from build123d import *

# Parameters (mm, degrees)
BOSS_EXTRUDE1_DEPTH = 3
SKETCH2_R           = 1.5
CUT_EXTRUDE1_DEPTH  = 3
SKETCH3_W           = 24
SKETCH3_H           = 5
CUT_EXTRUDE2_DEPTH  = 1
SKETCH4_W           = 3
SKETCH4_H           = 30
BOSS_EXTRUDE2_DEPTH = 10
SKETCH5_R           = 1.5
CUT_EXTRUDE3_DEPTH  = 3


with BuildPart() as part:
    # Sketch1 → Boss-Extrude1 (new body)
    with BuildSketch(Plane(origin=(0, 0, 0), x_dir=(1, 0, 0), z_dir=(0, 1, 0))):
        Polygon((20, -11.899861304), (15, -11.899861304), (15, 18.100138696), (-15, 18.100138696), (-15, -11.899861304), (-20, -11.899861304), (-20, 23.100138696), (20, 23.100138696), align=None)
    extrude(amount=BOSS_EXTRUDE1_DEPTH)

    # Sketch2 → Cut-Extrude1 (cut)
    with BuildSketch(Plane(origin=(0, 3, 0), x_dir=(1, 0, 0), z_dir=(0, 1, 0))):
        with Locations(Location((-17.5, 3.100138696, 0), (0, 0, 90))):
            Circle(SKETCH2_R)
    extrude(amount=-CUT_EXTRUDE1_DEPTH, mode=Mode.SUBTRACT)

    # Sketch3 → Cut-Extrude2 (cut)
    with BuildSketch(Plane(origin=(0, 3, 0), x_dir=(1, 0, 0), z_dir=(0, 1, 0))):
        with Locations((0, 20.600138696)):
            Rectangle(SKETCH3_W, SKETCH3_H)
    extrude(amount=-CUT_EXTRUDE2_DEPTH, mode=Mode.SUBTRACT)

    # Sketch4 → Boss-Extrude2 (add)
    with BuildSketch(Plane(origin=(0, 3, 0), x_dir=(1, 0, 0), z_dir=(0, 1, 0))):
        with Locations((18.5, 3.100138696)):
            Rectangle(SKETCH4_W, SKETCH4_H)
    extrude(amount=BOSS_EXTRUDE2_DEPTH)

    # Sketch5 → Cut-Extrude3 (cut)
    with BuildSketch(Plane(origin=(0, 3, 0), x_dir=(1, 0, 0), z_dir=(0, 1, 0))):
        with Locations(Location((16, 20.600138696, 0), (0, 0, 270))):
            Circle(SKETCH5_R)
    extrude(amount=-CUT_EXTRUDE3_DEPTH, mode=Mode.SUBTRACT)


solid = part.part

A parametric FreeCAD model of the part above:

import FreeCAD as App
import Part
import Sketcher

V = App.Vector

doc = App.newDocument("Part")
body = doc.addObject("PartDesign::Body", "Body")

sketch1 = body.newObject("Sketcher::SketchObject", "Sketch")
sketch1.AttachmentSupport = (doc.getObject("XZ_Plane"), [""])
sketch1.MapMode = "FlatFace"
sketch1.addGeometry([
    Part.LineSegment(V(15, 12, 0), V(20, 12, 0)),
    Part.LineSegment(V(20, 12, 0), V(20, -23, 0)),
    Part.LineSegment(V(20, -23, 0), V(-20, -23, 0)),
    Part.LineSegment(V(-20, -23, 0), V(-20, 12, 0)),
    Part.LineSegment(V(-20, 12, 0), V(-15, 12, 0)),
    Part.LineSegment(V(-15, 12, 0), V(-15, -18, 0)),
    Part.LineSegment(V(-15, -18, 0), V(15, -18, 0)),
    Part.LineSegment(V(15, -18, 0), V(15, 12, 0)),
], False)
sketch1.addConstraint([
    Sketcher.Constraint("Coincident", 0, 2, 1, 1),
    Sketcher.Constraint("Coincident", 1, 2, 2, 1),
    Sketcher.Constraint("Coincident", 2, 2, 3, 1),
    Sketcher.Constraint("Coincident", 3, 2, 4, 1),
    Sketcher.Constraint("Coincident", 4, 2, 5, 1),
    Sketcher.Constraint("Coincident", 5, 2, 6, 1),
    Sketcher.Constraint("Coincident", 6, 2, 7, 1),
    Sketcher.Constraint("Coincident", 7, 2, 0, 1),
    Sketcher.Constraint("Horizontal", 0),
    Sketcher.Constraint("Vertical", 1),
    Sketcher.Constraint("Horizontal", 2),
    Sketcher.Constraint("Vertical", 3),
    Sketcher.Constraint("Horizontal", 4),
    Sketcher.Constraint("Vertical", 5),
    Sketcher.Constraint("Horizontal", 6),
    Sketcher.Constraint("Vertical", 7),
    Sketcher.Constraint("Symmetric", 0, 2, 3, 2, -2),
    Sketcher.Constraint("Equal", 0, 4),
    Sketcher.Constraint("Equal", 6, 5),
    Sketcher.Constraint("DistanceX", 0, 1, 0, 2, 5.0),
    Sketcher.Constraint("DistanceX", 2, 2, 2, 1, 40.0),
    Sketcher.Constraint("DistanceY", 1, 2, 1, 1, 35.0),
    Sketcher.Constraint("DistanceY", -1, 1, 0, 2, 11.899861),
])
pad1 = body.newObject("PartDesign::Pad", "Pad")
pad1.Profile = sketch1
pad1.Length = 3
pad1.Reversed = True

sketch2 = body.newObject("Sketcher::SketchObject", "Sketch001")
sketch2.AttachmentSupport = (doc.getObject("XZ_Plane"), [""])
sketch2.MapMode = "FlatFace"
sketch2.AttachmentOffset = App.Placement(V(0, 0, -3), App.Rotation())
sketch2.addGeometry(Part.Circle(V(-17.5, -3.1, 0), V(0, 0, 1), 1.5), False)
sketch2.addConstraint([
    Sketcher.Constraint("Diameter", 0, 3.0),
    Sketcher.Constraint("DistanceX", 0, 3, -1, 1, 17.5),
    Sketcher.Constraint("DistanceY", 0, 3, -1, 1, 3.100139),
])
pocket1 = body.newObject("PartDesign::Pocket", "Pocket")
pocket1.Profile = sketch2
pocket1.Length = 3
pocket1.Reversed = True

sketch3 = body.newObject("Sketcher::SketchObject", "Sketch002")
sketch3.AttachmentSupport = (doc.getObject("XZ_Plane"), [""])
sketch3.MapMode = "FlatFace"
sketch3.AttachmentOffset = App.Placement(V(0, 0, -3), App.Rotation())
sketch3.addGeometry([
    Part.LineSegment(V(-12, -23, 0), V(-12, -18, 0)),
    Part.LineSegment(V(-12, -18, 0), V(12, -18, 0)),
    Part.LineSegment(V(12, -18, 0), V(12, -23, 0)),
    Part.LineSegment(V(12, -23, 0), V(-12, -23, 0)),
], False)
sketch3.addConstraint([
    Sketcher.Constraint("Coincident", 0, 2, 1, 1),
    Sketcher.Constraint("Coincident", 1, 2, 2, 1),
    Sketcher.Constraint("Coincident", 2, 2, 3, 1),
    Sketcher.Constraint("Coincident", 3, 2, 0, 1),
    Sketcher.Constraint("Vertical", 0),
    Sketcher.Constraint("Horizontal", 1),
    Sketcher.Constraint("Vertical", 2),
    Sketcher.Constraint("Horizontal", 3),
    Sketcher.Constraint("DistanceX", 1, 1, 1, 2, 24.0),
    Sketcher.Constraint("DistanceY", 0, 1, 0, 2, 5.0),
    Sketcher.Constraint("DistanceX", 0, 2, -1, 1, 12.0),
    Sketcher.Constraint("DistanceY", 0, 2, -1, 1, 18.100139),
])
pocket2 = body.newObject("PartDesign::Pocket", "Pocket001")
pocket2.Profile = sketch3
pocket2.Length = 1
pocket2.Reversed = True

sketch4 = body.newObject("Sketcher::SketchObject", "Sketch003")
sketch4.AttachmentSupport = (doc.getObject("XZ_Plane"), [""])
sketch4.MapMode = "FlatFace"
sketch4.AttachmentOffset = App.Placement(V(0, 0, -3), App.Rotation())
sketch4.addGeometry([
    Part.LineSegment(V(17, -18.1, 0), V(17, 11.9, 0)),
    Part.LineSegment(V(17, 11.9, 0), V(20, 11.9, 0)),
    Part.LineSegment(V(20, 11.9, 0), V(20, -18.1, 0)),
    Part.LineSegment(V(20, -18.1, 0), V(17, -18.1, 0)),
], False)
sketch4.addConstraint([
    Sketcher.Constraint("Coincident", 0, 2, 1, 1),
    Sketcher.Constraint("Coincident", 1, 2, 2, 1),
    Sketcher.Constraint("Coincident", 2, 2, 3, 1),
    Sketcher.Constraint("Coincident", 3, 2, 0, 1),
    Sketcher.Constraint("Vertical", 0),
    Sketcher.Constraint("Horizontal", 1),
    Sketcher.Constraint("Vertical", 2),
    Sketcher.Constraint("Horizontal", 3),
    Sketcher.Constraint("DistanceX", 1, 1, 1, 2, 3.0),
    Sketcher.Constraint("DistanceY", 0, 1, 0, 2, 30.0),
    Sketcher.Constraint("DistanceX", -1, 1, 0, 2, 17.0),
    Sketcher.Constraint("DistanceY", -1, 1, 0, 2, 11.899861),
])
pad2 = body.newObject("PartDesign::Pad", "Pad001")
pad2.Profile = sketch4
pad2.Length = 10
pad2.Reversed = True

sketch5 = body.newObject("Sketcher::SketchObject", "Sketch004")
sketch5.AttachmentSupport = (doc.getObject("XZ_Plane"), [""])
sketch5.MapMode = "FlatFace"
sketch5.AttachmentOffset = App.Placement(V(0, 0, -3), App.Rotation())
sketch5.addGeometry(Part.Circle(V(16, -20.6, 0), V(0, 0, 1), 1.5), False)
sketch5.addConstraint([
    Sketcher.Constraint("Diameter", 0, 3.0),
    Sketcher.Constraint("DistanceX", -1, 1, 0, 3, 16.0),
    Sketcher.Constraint("DistanceY", 0, 3, -1, 1, 20.600139),
])
pocket3 = body.newObject("PartDesign::Pocket", "Pocket002")
pocket3.Profile = sketch5
pocket3.Length = 3
pocket3.Reversed = True

doc.recompute()
